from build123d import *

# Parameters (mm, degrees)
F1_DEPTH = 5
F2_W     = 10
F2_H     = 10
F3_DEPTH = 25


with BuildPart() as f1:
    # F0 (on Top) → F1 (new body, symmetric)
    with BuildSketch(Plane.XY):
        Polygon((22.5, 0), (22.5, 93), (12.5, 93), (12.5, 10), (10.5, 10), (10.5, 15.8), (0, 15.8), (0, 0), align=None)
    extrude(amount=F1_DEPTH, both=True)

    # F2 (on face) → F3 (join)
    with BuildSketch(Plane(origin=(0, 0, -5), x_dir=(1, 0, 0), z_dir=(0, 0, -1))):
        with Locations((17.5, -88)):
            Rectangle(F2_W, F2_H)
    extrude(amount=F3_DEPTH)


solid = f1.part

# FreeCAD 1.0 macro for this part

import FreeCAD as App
import Part
import Sketcher
from FreeCAD import Vector

doc = App.newDocument("Part")
body = doc.addObject("PartDesign::Body", "Body")

# Sketch on XY plane
sketch1 = doc.addObject("Sketcher::SketchObject", "Sketch")
body.addObject(sketch1)
sketch1.AttachmentSupport = (doc.XY_Plane, [""])
sketch1.MapMode = "FlatFace"
sketch1.addGeometry([
    Part.LineSegment(Vector(22.5, 0, 0), Vector(22.5, 93, 0)),  # 0
    Part.LineSegment(Vector(22.5, 93, 0), Vector(12.5, 93, 0)),  # 1
    Part.LineSegment(Vector(12.5, 93, 0), Vector(12.5, 10, 0)),  # 2
    Part.LineSegment(Vector(12.5, 10, 0), Vector(10.5, 10, 0)),  # 3
    Part.LineSegment(Vector(10.5, 10, 0), Vector(10.5, 15.8, 0)),  # 4
    Part.LineSegment(Vector(10.5, 15.8, 0), Vector(0, 15.8, 0)),  # 5
    Part.LineSegment(Vector(0, 15.8, 0), Vector(0, 0, 0)),  # 6
    Part.LineSegment(Vector(0, 0, 0), Vector(22.5, 0, 0)),  # 7
], False)
sketch1.addConstraint([
    Sketcher.Constraint("Coincident", 0, 2, 1, 1),
    Sketcher.Constraint("Coincident", 1, 2, 2, 1),
    Sketcher.Constraint("Coincident", 2, 2, 3, 1),
    Sketcher.Constraint("Coincident", 3, 2, 4, 1),
    Sketcher.Constraint("Coincident", 4, 2, 5, 1),
    Sketcher.Constraint("Coincident", 5, 2, 6, 1),
    Sketcher.Constraint("Coincident", 6, 2, 7, 1),
    Sketcher.Constraint("Coincident", 7, 2, 0, 1),
    Sketcher.Constraint("Vertical", 0),
    Sketcher.Constraint("Horizontal", 1),
    Sketcher.Constraint("Vertical", 2),
    Sketcher.Constraint("Horizontal", 3),
    Sketcher.Constraint("Vertical", 4),
    Sketcher.Constraint("Horizontal", 5),
    Sketcher.Constraint("Vertical", 6),
    Sketcher.Constraint("Horizontal", 7),
    Sketcher.Constraint("Coincident", 6, 2, -1, 1),
    Sketcher.Constraint("DistanceX", 1, 2, 1, 1, 10.0),
    Sketcher.Constraint("DistanceX", 3, 2, 3, 1, 2.0),
    Sketcher.Constraint("DistanceY", 0, 1, 0, 2, 93.0),
    Sketcher.Constraint("DistanceY", 2, 2, 2, 1, 83.0),
    Sketcher.Constraint("DistanceX", 5, 2, 5, 1, 10.5),
    Sketcher.Constraint("DistanceY", 4, 1, 4, 2, 5.8),
])
pad1 = doc.addObject("PartDesign::Pad", "Pad")
body.addObject(pad1)
pad1.Profile = sketch1
pad1.Length = 10
pad1.Midplane = True

# Sketch on XY plane
sketch2 = doc.addObject("Sketcher::SketchObject", "Sketch001")
body.addObject(sketch2)
sketch2.AttachmentSupport = (doc.XY_Plane, [""])
sketch2.MapMode = "FlatFace"
sketch2.AttachmentOffset = App.Placement(Vector(0, 0, -5), App.Rotation())
sketch2.addGeometry([
    Part.LineSegment(Vector(12, 83, 0), Vector(12, 93, 0)),
    Part.LineSegment(Vector(12, 93, 0), Vector(22, 93, 0)),
    Part.LineSegment(Vector(22, 93, 0), Vector(22, 83, 0)),
    Part.LineSegment(Vector(22, 83, 0), Vector(12, 83, 0)),
], False)
sketch2.addConstraint([
    Sketcher.Constraint("Coincident", 0, 2, 1, 1),
    Sketcher.Constraint("Coincident", 1, 2, 2, 1),
    Sketcher.Constraint("Coincident", 2, 2, 3, 1),
    Sketcher.Constraint("Coincident", 3, 2, 0, 1),
    Sketcher.Constraint("Vertical", 0),
    Sketcher.Constraint("Horizontal", 1),
    Sketcher.Constraint("Vertical", 2),
    Sketcher.Constraint("Horizontal", 3),
    Sketcher.Constraint("Equal", 3, 0),
    Sketcher.Constraint("DistanceX", 1, 1, 1, 2, 10.0),
    Sketcher.Constraint("DistanceY", -1, 1, 0, 2, 93.0),
    Sketcher.Constraint("DistanceX", -1, 1, 0, 2, 12.5),
])
pad2 = doc.addObject("PartDesign::Pad", "Pad001")
body.addObject(pad2)
pad2.Profile = sketch2
pad2.Length = 25
pad2.Reversed = True

doc.recompute()
